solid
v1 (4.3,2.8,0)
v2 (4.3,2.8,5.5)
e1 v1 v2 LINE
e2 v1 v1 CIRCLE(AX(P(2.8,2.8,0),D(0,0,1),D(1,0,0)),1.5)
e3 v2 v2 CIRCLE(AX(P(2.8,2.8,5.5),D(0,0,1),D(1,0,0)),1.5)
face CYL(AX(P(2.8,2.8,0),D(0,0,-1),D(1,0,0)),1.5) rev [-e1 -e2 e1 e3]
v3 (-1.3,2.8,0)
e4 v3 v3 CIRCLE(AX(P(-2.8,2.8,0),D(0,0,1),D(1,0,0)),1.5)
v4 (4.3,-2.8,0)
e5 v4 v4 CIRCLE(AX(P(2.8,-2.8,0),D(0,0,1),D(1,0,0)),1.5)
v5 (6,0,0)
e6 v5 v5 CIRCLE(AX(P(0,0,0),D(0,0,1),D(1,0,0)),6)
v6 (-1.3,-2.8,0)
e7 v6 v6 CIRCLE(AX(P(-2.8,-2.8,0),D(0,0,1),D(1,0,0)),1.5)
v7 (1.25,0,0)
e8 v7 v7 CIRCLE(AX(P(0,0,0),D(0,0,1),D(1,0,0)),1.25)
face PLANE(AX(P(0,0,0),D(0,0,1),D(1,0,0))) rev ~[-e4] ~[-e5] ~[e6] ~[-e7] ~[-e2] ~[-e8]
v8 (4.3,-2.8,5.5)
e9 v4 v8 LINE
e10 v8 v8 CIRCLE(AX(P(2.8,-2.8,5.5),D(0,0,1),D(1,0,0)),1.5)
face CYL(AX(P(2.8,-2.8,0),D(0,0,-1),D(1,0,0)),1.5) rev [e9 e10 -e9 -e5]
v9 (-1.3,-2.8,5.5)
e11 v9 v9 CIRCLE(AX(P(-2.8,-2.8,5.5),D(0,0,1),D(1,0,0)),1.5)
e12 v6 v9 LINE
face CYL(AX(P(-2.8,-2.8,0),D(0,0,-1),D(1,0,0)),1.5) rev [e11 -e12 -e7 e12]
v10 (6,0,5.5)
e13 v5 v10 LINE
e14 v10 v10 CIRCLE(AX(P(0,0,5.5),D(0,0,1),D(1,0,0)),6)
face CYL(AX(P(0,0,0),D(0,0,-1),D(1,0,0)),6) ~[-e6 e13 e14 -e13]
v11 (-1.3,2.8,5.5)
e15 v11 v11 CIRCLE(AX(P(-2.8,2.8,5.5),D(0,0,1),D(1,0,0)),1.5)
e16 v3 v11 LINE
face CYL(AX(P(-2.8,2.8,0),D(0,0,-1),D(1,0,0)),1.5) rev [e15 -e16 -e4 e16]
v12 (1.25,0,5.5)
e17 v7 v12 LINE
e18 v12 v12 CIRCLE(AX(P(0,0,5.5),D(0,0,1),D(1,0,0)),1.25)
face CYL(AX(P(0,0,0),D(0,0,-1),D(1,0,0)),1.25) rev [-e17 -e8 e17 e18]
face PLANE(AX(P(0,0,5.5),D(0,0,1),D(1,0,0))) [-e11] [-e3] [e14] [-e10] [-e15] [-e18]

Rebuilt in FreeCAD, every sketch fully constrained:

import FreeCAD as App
import Part
import Sketcher

doc = App.newDocument("Part")
body = doc.addObject("PartDesign::Body", "Body")

# Sketch on XY plane
sketch1 = doc.addObject("Sketcher::SketchObject", "Sketch")
body.addObject(sketch1)
sketch1.AttachmentSupport = (doc.XY_Plane, [""])
sketch1.MapMode = "FlatFace"
sketch1.addGeometry([
    Part.Circle(App.Vector(0, 0, 0), App.Vector(0, 0, 1), 6),  # 0
    Part.Circle(App.Vector(-2.8, -2.8, 0), App.Vector(0, 0, 1), 1.5),  # 1
    Part.Circle(App.Vector(2.8, -2.8, 0), App.Vector(0, 0, 1), 1.5),  # 2
    Part.Circle(App.Vector(-2.8, 2.8, 0), App.Vector(0, 0, 1), 1.5),  # 3
    Part.Circle(App.Vector(0, 0, 0), App.Vector(0, 0, 1), 1.25),  # 4
    Part.Circle(App.Vector(2.8, 2.8, 0), App.Vector(0, 0, 1), 1.5),  # 5
], False)
sketch1.addConstraint([
    Sketcher.Constraint("Coincident", 0, 3, -1, 1),
    Sketcher.Constraint("Coincident", 4, 3, -1, 1),
    Sketcher.Constraint("Equal", 1, 2),
    Sketcher.Constraint("Equal", 2, 3),
    Sketcher.Constraint("Equal", 3, 5),
    Sketcher.Constraint("Symmetric", 2, 3, 3, 3, -1, 1),
    Sketcher.Constraint("Symmetric", 1, 3, 5, 3, -1, 1),
    Sketcher.Constraint("Symmetric", 1, 3, 2, 3, -2),
    Sketcher.Constraint("Diameter", 0, 12.0),
    Sketcher.Constraint("Diameter", 1, 3.0),
    Sketcher.Constraint("Diameter", 4, 2.5),
    Sketcher.Constraint("DistanceX", 1, 3, 2, 3, 5.6),
    Sketcher.Constraint("DistanceY", 1, 3, 3, 3, 5.6),
])
pad1 = doc.addObject("PartDesign::Pad", "Pad")
body.addObject(pad1)
pad1.Profile = sketch1
pad1.Length = 5.5

doc.recompute()
